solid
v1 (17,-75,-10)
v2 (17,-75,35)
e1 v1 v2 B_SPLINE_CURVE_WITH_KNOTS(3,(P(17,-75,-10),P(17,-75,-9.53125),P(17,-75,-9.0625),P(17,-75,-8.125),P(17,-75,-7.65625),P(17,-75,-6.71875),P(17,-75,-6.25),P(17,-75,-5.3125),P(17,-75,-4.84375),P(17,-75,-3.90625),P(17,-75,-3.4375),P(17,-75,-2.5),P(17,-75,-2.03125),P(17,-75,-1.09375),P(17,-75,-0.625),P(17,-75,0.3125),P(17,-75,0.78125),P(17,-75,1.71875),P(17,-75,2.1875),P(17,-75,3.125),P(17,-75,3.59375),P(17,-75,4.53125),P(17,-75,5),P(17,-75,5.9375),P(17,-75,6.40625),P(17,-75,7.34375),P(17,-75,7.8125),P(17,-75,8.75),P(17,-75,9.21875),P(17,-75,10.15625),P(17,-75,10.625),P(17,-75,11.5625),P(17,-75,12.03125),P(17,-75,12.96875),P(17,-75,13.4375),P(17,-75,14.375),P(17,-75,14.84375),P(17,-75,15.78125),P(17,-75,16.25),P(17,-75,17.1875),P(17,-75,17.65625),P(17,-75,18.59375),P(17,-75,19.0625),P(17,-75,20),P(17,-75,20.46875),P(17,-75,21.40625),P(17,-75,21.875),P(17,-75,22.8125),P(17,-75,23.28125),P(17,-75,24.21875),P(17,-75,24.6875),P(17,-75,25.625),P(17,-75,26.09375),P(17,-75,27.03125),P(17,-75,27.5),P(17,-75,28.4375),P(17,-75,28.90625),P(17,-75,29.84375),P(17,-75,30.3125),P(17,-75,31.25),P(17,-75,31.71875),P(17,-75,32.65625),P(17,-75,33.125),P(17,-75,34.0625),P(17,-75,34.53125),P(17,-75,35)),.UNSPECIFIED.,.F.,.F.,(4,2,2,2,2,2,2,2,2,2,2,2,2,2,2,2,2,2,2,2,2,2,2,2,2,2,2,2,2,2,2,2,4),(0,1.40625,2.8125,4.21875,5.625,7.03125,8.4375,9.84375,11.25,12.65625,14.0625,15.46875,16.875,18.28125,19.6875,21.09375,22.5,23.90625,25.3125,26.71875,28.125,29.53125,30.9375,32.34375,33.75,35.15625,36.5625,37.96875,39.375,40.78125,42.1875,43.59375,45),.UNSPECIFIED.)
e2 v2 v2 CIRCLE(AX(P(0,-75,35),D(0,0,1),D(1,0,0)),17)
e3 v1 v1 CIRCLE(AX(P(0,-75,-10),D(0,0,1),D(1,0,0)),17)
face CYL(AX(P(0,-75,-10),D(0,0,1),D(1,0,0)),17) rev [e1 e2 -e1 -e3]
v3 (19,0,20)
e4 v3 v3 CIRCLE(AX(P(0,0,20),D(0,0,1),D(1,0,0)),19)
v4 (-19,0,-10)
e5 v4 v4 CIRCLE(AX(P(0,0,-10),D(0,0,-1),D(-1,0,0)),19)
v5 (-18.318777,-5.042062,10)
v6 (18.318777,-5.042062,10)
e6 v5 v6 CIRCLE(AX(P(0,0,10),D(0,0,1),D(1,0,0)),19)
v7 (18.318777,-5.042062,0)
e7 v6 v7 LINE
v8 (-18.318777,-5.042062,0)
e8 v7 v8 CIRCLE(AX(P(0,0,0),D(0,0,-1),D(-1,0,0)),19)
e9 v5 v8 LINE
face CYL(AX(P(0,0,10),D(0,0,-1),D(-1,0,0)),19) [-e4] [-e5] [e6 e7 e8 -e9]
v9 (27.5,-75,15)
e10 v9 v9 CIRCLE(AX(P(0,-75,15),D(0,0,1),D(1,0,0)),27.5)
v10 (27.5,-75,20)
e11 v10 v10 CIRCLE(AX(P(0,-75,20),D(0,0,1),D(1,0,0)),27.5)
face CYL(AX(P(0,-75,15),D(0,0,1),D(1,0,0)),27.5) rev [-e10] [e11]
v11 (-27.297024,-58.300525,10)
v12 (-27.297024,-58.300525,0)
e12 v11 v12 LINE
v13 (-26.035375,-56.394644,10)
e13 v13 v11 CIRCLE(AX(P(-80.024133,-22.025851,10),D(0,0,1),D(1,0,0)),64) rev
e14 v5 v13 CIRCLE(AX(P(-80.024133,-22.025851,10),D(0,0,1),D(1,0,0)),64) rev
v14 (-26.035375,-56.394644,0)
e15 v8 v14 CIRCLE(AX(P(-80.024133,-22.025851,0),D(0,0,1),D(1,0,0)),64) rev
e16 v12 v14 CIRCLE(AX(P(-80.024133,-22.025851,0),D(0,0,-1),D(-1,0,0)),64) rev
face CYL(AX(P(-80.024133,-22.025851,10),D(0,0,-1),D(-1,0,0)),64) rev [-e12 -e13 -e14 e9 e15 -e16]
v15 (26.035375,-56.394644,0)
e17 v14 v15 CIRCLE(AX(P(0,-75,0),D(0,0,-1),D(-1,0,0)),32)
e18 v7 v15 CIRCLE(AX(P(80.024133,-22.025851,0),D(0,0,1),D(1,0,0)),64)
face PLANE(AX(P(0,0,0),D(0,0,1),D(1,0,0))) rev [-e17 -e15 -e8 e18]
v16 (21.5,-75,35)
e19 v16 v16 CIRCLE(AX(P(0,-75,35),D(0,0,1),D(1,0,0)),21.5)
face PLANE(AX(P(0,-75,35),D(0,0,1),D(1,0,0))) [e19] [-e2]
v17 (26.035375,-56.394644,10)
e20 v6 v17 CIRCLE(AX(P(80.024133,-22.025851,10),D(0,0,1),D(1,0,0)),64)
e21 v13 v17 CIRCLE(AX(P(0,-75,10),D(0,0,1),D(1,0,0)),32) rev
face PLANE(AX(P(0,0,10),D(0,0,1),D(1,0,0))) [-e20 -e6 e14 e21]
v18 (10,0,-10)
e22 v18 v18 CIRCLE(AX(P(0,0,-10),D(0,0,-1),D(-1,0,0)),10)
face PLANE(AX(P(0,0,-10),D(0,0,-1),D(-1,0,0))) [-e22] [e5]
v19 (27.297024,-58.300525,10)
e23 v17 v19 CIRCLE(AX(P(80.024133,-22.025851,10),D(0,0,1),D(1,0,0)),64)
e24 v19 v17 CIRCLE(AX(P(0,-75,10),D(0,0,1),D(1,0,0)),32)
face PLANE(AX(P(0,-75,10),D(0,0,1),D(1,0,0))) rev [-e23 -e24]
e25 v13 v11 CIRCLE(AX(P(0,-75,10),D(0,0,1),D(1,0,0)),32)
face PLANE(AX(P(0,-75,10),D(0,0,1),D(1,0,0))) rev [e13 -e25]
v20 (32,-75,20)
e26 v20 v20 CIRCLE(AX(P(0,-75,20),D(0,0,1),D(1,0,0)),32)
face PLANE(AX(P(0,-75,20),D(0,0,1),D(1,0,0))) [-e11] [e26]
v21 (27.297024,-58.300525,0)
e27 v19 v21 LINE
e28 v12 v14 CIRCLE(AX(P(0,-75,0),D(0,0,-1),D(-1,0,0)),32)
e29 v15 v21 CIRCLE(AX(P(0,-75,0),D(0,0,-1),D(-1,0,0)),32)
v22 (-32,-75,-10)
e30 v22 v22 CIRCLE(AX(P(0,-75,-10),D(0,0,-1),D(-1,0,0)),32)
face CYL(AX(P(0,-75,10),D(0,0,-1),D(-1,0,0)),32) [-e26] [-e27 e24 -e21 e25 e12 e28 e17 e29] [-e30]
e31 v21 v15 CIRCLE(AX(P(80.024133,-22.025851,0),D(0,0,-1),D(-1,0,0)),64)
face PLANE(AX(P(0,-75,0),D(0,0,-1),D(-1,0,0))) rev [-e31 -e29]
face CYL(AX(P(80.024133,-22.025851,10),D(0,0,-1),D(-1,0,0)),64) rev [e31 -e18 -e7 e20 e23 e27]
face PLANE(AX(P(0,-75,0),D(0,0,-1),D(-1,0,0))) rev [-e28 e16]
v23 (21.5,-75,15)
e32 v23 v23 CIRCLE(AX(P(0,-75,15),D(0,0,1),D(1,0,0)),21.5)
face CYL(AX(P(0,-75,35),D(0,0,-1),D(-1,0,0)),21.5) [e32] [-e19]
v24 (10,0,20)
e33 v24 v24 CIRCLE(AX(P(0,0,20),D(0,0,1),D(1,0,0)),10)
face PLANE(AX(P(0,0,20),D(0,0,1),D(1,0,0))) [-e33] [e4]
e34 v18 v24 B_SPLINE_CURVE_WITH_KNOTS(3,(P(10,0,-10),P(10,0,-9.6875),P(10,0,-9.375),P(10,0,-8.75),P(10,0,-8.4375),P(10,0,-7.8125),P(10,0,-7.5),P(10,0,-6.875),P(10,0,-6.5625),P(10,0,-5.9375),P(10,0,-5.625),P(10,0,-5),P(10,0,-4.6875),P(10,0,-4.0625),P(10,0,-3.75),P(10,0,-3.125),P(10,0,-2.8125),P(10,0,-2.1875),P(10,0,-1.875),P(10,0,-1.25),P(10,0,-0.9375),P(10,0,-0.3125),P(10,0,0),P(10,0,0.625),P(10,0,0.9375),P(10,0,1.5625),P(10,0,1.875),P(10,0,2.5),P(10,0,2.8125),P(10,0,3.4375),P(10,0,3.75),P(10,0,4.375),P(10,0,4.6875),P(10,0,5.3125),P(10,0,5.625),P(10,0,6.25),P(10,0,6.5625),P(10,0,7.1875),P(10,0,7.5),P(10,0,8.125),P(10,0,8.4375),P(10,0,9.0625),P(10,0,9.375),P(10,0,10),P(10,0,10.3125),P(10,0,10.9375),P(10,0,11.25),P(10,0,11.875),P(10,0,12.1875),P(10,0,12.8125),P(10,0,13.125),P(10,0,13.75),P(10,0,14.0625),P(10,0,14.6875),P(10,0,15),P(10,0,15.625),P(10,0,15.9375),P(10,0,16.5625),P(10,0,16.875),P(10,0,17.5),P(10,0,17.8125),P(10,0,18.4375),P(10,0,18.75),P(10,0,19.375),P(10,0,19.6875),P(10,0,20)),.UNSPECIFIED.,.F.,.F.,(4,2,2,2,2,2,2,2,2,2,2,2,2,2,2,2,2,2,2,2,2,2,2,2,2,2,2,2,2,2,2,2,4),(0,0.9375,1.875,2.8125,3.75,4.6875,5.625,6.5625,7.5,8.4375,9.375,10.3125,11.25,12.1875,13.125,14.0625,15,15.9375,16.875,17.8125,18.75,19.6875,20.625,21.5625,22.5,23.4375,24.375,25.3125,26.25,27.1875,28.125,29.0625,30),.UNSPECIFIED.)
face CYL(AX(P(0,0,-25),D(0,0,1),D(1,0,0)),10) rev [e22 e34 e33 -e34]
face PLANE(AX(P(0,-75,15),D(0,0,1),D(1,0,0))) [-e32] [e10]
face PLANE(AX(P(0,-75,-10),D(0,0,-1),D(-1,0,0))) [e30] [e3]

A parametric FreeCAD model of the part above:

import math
import FreeCAD as App
import Part
import Sketcher

V = App.Vector

doc = App.newDocument("Part")
body = doc.addObject("PartDesign::Body", "Body")

sketch1 = body.newObject("Sketcher::SketchObject", "Sketch")
sketch1.AttachmentSupport = (doc.getObject("XY_Plane"), [""])
sketch1.MapMode = "FlatFace"
sketch1.addGeometry([
    Part.ArcOfCircle(Part.Circle(V(0, 0, 0), V(0, 0, 1), 19), math.radians(-15), math.radians(195)),
    Part.ArcOfCircle(Part.Circle(V(-80, -22, 0), V(0, 0, 1), 64), math.radians(-35), math.radians(15)),
    Part.ArcOfCircle(Part.Circle(V(0, -75, 0), V(0, 0, 1), 32), math.radians(149), math.radians(391)),
    Part.ArcOfCircle(Part.Circle(V(80, -22, 0), V(0, 0, 1), 64), math.radians(165), math.radians(215)),
], False)
sketch1.addConstraint([
    Sketcher.Constraint("Tangent", 0, 2, 1, 2),
    Sketcher.Constraint("Coincident", 1, 1, 2, 1),
    Sketcher.Constraint("Coincident", 2, 2, 3, 2),
    Sketcher.Constraint("Tangent", 3, 1, 0, 1),
    Sketcher.Constraint("Coincident", 0, 3, -1, 1),
    Sketcher.Constraint("Equal", 1, 3),
    Sketcher.Constraint("Symmetric", 1, 1, 2, 2, -2),
    Sketcher.Constraint("Radius", 0, 19.0),
    Sketcher.Constraint("Radius", 1, 64.0),
    Sketcher.Constraint("Radius", 2, 32.0),
    Sketcher.Constraint("DistanceY", 2, 3, -1, 1, 75.0),
    Sketcher.Constraint("DistanceX", 0, 2, 2, 2, 45.615802),
])
pad1 = body.newObject("PartDesign::Pad", "Pad")
pad1.Profile = sketch1
pad1.Length = 10

sketch2 = body.newObject("Sketcher::SketchObject", "Sketch001")
sketch2.AttachmentSupport = (doc.getObject("XY_Plane"), [""])
sketch2.MapMode = "FlatFace"
sketch2.AttachmentOffset = App.Placement(V(0, 0, -10), App.Rotation())
sketch2.addGeometry([
    Part.Circle(V(0, 0, 0), V(0, 0, 1), 19),
    Part.Circle(V(0, -75, 0), V(0, 0, 1), 32),
], False)
sketch2.addConstraint([
    Sketcher.Constraint("Coincident", 0, 3, -1, 1),
    Sketcher.Constraint("PointOnObject", 1, 3, -2),
    Sketcher.Constraint("Diameter", 0, 38.0),
    Sketcher.Constraint("Diameter", 1, 64.0),
    Sketcher.Constraint("DistanceY", 1, 3, -1, 1, 75.0),
])
pad2 = body.newObject("PartDesign::Pad", "Pad001")
pad2.Profile = sketch2
pad2.Length = 10

sketch3 = body.newObject("Sketcher::SketchObject", "Sketch002")
sketch3.AttachmentSupport = (doc.getObject("XY_Plane"), [""])
sketch3.MapMode = "FlatFace"
sketch3.AttachmentOffset = App.Placement(V(0, 0, 10), App.Rotation())
sketch3.addGeometry(Part.Circle(V(0, 0, 0), V(0, 0, 1), 19), False)
sketch3.addConstraint([
    Sketcher.Constraint("Coincident", 0, 3, -1, 1),
    Sketcher.Constraint("Diameter", 0, 38.0),
])
pad3 = body.newObject("PartDesign::Pad", "Pad002")
pad3.Profile = sketch3
pad3.Length = 10

sketch4 = body.newObject("Sketcher::SketchObject", "Sketch003")
sketch4.AttachmentSupport = (doc.getObject("XY_Plane"), [""])
sketch4.MapMode = "FlatFace"
sketch4.AttachmentOffset = App.Placement(V(0, 0, 10), App.Rotation())
sketch4.addGeometry(Part.Circle(V(0, -75, 0), V(0, 0, 1), 32), False)
sketch4.addConstraint([
    Sketcher.Constraint("PointOnObject", 0, 3, -2),
    Sketcher.Constraint("Diameter", 0, 64.0),
    Sketcher.Constraint("DistanceY", 0, 3, -1, 1, 75.0),
])
pad4 = body.newObject("PartDesign::Pad", "Pad003")
pad4.Profile = sketch4
pad4.Length = 10

sketch5 = body.newObject("Sketcher::SketchObject", "Sketch004")
sketch5.AttachmentSupport = (doc.getObject("XY_Plane"), [""])
sketch5.MapMode = "FlatFace"
sketch5.AttachmentOffset = App.Placement(V(0, 0, 20), App.Rotation())
sketch5.addGeometry(Part.Circle(V(0, -75, 0), V(0, 0, 1), 28), False)
sketch5.addConstraint([
    Sketcher.Constraint("PointOnObject", 0, 3, -2),
    Sketcher.Constraint("Diameter", 0, 55.0),
    Sketcher.Constraint("DistanceY", 0, 3, -1, 1, 75.0),
])
pocket1 = body.newObject("PartDesign::Pocket", "Pocket")
pocket1.Profile = sketch5
pocket1.Length = 5

sketch6 = body.newObject("Sketcher::SketchObject", "Sketch005")
sketch6.AttachmentSupport = (doc.getObject("XY_Plane"), [""])
sketch6.MapMode = "FlatFace"
sketch6.AttachmentOffset = App.Placement(V(0, 0, 15), App.Rotation())
sketch6.addGeometry(Part.Circle(V(0, -75, 0), V(0, 0, 1), 22), False)
sketch6.addConstraint([
    Sketcher.Constraint("PointOnObject", 0, 3, -2),
    Sketcher.Constraint("Diameter", 0, 43.0),
    Sketcher.Constraint("DistanceY", 0, 3, -1, 1, 75.0),
])
pad5 = body.newObject("PartDesign::Pad", "Pad004")
pad5.Profile = sketch6
pad5.Length = 20

sketch7 = body.newObject("Sketcher::SketchObject", "Sketch006")
sketch7.AttachmentSupport = (doc.getObject("XY_Plane"), [""])
sketch7.MapMode = "FlatFace"
sketch7.AttachmentOffset = App.Placement(V(0, 0, 35), App.Rotation())
sketch7.addGeometry(Part.Circle(V(0, -75, 0), V(0, 0, 1), 17), False)
sketch7.addConstraint([
    Sketcher.Constraint("PointOnObject", 0, 3, -2),
    Sketcher.Constraint("Diameter", 0, 34.0),
    Sketcher.Constraint("DistanceY", 0, 3, -1, 1, 75.0),
])
pocket2 = body.newObject("PartDesign::Pocket", "Pocket001")
pocket2.Profile = sketch7
pocket2.Length = 45

sketch8 = body.newObject("Sketcher::SketchObject", "Sketch007")
sketch8.AttachmentSupport = (doc.getObject("XY_Plane"), [""])
sketch8.MapMode = "FlatFace"
sketch8.AttachmentOffset = App.Placement(V(0, 0, 20), App.Rotation())
sketch8.addGeometry(Part.Circle(V(0, 0, 0), V(0, 0, 1), 10), False)
sketch8.addConstraint([
    Sketcher.Constraint("Coincident", 0, 3, -1, 1),
    Sketcher.Constraint("Diameter", 0, 20.0),
])
pocket3 = body.newObject("PartDesign::Pocket", "Pocket002")
pocket3.Profile = sketch8
pocket3.Length = 45

doc.recompute()
